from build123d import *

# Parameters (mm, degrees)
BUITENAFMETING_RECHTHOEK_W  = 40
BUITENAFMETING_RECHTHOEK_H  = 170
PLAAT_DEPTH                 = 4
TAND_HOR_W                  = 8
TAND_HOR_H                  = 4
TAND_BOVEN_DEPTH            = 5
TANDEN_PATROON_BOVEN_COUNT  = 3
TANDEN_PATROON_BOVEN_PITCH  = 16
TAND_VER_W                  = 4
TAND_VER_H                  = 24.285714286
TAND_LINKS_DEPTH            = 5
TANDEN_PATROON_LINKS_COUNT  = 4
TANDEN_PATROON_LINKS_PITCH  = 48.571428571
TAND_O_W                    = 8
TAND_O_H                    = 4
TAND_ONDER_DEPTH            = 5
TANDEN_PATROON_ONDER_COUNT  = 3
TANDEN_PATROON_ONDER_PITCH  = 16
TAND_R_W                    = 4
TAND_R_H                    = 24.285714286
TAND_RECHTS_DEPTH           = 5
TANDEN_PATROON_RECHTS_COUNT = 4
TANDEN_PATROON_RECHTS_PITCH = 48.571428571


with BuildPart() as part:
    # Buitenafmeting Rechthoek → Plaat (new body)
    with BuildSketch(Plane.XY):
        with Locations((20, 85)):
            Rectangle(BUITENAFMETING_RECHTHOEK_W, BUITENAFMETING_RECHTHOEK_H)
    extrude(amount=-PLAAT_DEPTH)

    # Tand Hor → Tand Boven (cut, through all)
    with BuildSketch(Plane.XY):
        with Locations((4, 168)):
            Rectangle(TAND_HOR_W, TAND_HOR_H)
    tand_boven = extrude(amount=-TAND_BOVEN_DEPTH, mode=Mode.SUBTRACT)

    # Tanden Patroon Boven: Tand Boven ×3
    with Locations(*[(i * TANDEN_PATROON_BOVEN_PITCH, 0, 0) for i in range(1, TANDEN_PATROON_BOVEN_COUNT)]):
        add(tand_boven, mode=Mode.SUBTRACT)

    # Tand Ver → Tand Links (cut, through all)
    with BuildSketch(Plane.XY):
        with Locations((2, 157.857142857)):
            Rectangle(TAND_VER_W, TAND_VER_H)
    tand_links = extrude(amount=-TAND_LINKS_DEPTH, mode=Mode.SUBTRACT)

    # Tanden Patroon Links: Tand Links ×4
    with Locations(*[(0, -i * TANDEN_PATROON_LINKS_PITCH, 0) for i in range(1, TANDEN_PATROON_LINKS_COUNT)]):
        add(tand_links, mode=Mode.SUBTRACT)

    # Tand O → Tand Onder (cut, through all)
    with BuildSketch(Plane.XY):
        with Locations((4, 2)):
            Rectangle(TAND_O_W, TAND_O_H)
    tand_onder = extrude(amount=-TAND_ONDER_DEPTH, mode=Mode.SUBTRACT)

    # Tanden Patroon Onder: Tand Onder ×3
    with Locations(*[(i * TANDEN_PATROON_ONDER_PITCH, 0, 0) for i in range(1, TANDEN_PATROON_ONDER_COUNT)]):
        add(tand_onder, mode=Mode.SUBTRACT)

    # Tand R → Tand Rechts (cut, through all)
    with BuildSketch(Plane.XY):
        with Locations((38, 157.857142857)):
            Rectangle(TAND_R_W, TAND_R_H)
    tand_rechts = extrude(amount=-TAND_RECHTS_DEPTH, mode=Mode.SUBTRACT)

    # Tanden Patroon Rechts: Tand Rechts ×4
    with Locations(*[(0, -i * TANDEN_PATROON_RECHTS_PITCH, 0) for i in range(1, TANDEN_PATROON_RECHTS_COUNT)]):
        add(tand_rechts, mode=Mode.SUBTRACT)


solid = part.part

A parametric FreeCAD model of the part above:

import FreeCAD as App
import Part
import Sketcher
from FreeCAD import Vector

doc = App.newDocument("Part")
body = doc.addObject("PartDesign::Body", "Body")

# Sketch on XY plane
sketch1 = doc.addObject("Sketcher::SketchObject", "Sketch")
body.addObject(sketch1)
sketch1.AttachmentSupport = (doc.XY_Plane, [""])
sketch1.MapMode = "FlatFace"
sketch1.addGeometry([
    Part.LineSegment(Vector(0, 170, 0), Vector(0, 0, 0)),
    Part.LineSegment(Vector(0, 0, 0), Vector(40, 0, 0)),
    Part.LineSegment(Vector(40, 0, 0), Vector(40, 170, 0)),
    Part.LineSegment(Vector(40, 170, 0), Vector(0, 170, 0)),
], False)
sketch1.addConstraint([
    Sketcher.Constraint("Coincident", 0, 2, 1, 1),
    Sketcher.Constraint("Coincident", 1, 2, 2, 1),
    Sketcher.Constraint("Coincident", 2, 2, 3, 1),
    Sketcher.Constraint("Coincident", 3, 2, 0, 1),
    Sketcher.Constraint("Vertical", 0),
    Sketcher.Constraint("Horizontal", 1),
    Sketcher.Constraint("Vertical", 2),
    Sketcher.Constraint("Horizontal", 3),
    Sketcher.Constraint("Coincident", 0, 2, -1, 1),
    Sketcher.Constraint("DistanceX", 1, 1, 1, 2, 40.0),
    Sketcher.Constraint("DistanceY", 0, 2, 0, 1, 170.0),
])
pad1 = doc.addObject("PartDesign::Pad", "Pad")
body.addObject(pad1)
pad1.Profile = sketch1
pad1.Length = 4
pad1.Reversed = True

# Sketch on XY plane
sketch2 = doc.addObject("Sketcher::SketchObject", "Sketch001")
body.addObject(sketch2)
sketch2.AttachmentSupport = (doc.XY_Plane, [""])
sketch2.MapMode = "FlatFace"
sketch2.addGeometry([
    Part.LineSegment(Vector(0, 170, 0), Vector(0, 166, 0)),
    Part.LineSegment(Vector(0, 166, 0), Vector(8, 166, 0)),
    Part.LineSegment(Vector(8, 166, 0), Vector(8, 170, 0)),
    Part.LineSegment(Vector(8, 170, 0), Vector(0, 170, 0)),
], False)
sketch2.addConstraint([
    Sketcher.Constraint("Coincident", 0, 2, 1, 1),
    Sketcher.Constraint("Coincident", 1, 2, 2, 1),
    Sketcher.Constraint("Coincident", 2, 2, 3, 1),
    Sketcher.Constraint("Coincident", 3, 2, 0, 1),
    Sketcher.Constraint("Vertical", 0),
    Sketcher.Constraint("Horizontal", 1),
    Sketcher.Constraint("Vertical", 2),
    Sketcher.Constraint("Horizontal", 3),
    Sketcher.Constraint("PointOnObject", 0, 2, -2),
    Sketcher.Constraint("DistanceX", 1, 1, 1, 2, 8.0),
    Sketcher.Constraint("DistanceY", 0, 2, 0, 1, 4.0),
    Sketcher.Constraint("DistanceY", -1, 1, 0, 2, 166.0),
])
pocket1 = doc.addObject("PartDesign::Pocket", "Pocket")
body.addObject(pocket1)
pocket1.Profile = sketch2
pocket1.Type = "ThroughAll"
doc.recompute()

linearpattern = doc.addObject("PartDesign::LinearPattern", "LinearPattern")
body.addObject(linearpattern)
linearpattern.Originals = [pocket1]
linearpattern.Direction = (doc.X_Axis, [""])
linearpattern.Mode = "offset"
linearpattern.Offset = 16
linearpattern.Occurrences = 3
body.Tip = linearpattern

# Sketch on XY plane
sketch3 = doc.addObject("Sketcher::SketchObject", "Sketch002")
body.addObject(sketch3)
sketch3.AttachmentSupport = (doc.XY_Plane, [""])
sketch3.MapMode = "FlatFace"
sketch3.addGeometry([
    Part.LineSegment(Vector(0, 170, 0), Vector(0, 145.714286, 0)),
    Part.LineSegment(Vector(0, 145.714286, 0), Vector(4, 145.714286, 0)),
    Part.LineSegment(Vector(4, 145.714286, 0), Vector(4, 170, 0)),
    Part.LineSegment(Vector(4, 170, 0), Vector(0, 170, 0)),
], False)
sketch3.addConstraint([
    Sketcher.Constraint("Coincident", 0, 2, 1, 1),
    Sketcher.Constraint("Coincident", 1, 2, 2, 1),
    Sketcher.Constraint("Coincident", 2, 2, 3, 1),
    Sketcher.Constraint("Coincident", 3, 2, 0, 1),
    Sketcher.Constraint("Vertical", 0),
    Sketcher.Constraint("Horizontal", 1),
    Sketcher.Constraint("Vertical", 2),
    Sketcher.Constraint("Horizontal", 3),
    Sketcher.Constraint("PointOnObject", 0, 2, -2),
    Sketcher.Constraint("DistanceX", 1, 1, 1, 2, 4.0),
    Sketcher.Constraint("DistanceY", -1, 1, 2, 2, 170.0),
    Sketcher.Constraint("DistanceY", 0, 2, 0, 1, 24.285714),
])
pocket2 = doc.addObject("PartDesign::Pocket", "Pocket001")
body.addObject(pocket2)
pocket2.Profile = sketch3
pocket2.Type = "ThroughAll"
doc.recompute()

linearpattern2 = doc.addObject("PartDesign::LinearPattern", "LinearPattern001")
body.addObject(linearpattern2)
linearpattern2.Originals = [pocket2]
linearpattern2.Direction = (doc.Y_Axis, [""])
linearpattern2.Mode = "offset"
linearpattern2.Offset = 48.571429
linearpattern2.Occurrences = 4
linearpattern2.Reversed = True
body.Tip = linearpattern2

# Sketch on XY plane
sketch4 = doc.addObject("Sketcher::SketchObject", "Sketch003")
body.addObject(sketch4)
sketch4.AttachmentSupport = (doc.XY_Plane, [""])
sketch4.MapMode = "FlatFace"
sketch4.addGeometry([
    Part.LineSegment(Vector(0, 4, 0), Vector(0, 0, 0)),
    Part.LineSegment(Vector(0, 0, 0), Vector(8, 0, 0)),
    Part.LineSegment(Vector(8, 0, 0), Vector(8, 4, 0)),
    Part.LineSegment(Vector(8, 4, 0), Vector(0, 4, 0)),
], False)
sketch4.addConstraint([
    Sketcher.Constraint("Coincident", 0, 2, 1, 1),
    Sketcher.Constraint("Coincident", 1, 2, 2, 1),
    Sketcher.Constraint("Coincident", 2, 2, 3, 1),
    Sketcher.Constraint("Coincident", 3, 2, 0, 1),
    Sketcher.Constraint("Vertical", 0),
    Sketcher.Constraint("Horizontal", 1),
    Sketcher.Constraint("Vertical", 2),
    Sketcher.Constraint("Horizontal", 3),
    Sketcher.Constraint("Coincident", 0, 2, -1, 1),
    Sketcher.Constraint("DistanceX", 1, 1, 1, 2, 8.0),
    Sketcher.Constraint("DistanceY", 0, 2, 0, 1, 4.0),
])
pocket3 = doc.addObject("PartDesign::Pocket", "Pocket002")
body.addObject(pocket3)
pocket3.Profile = sketch4
pocket3.Type = "ThroughAll"
doc.recompute()

linearpattern3 = doc.addObject("PartDesign::LinearPattern", "LinearPattern002")
body.addObject(linearpattern3)
linearpattern3.Originals = [pocket3]
linearpattern3.Direction = (doc.X_Axis, [""])
linearpattern3.Mode = "offset"
linearpattern3.Offset = 16
linearpattern3.Occurrences = 3
body.Tip = linearpattern3

# Sketch on XY plane
sketch5 = doc.addObject("Sketcher::SketchObject", "Sketch004")
body.addObject(sketch5)
sketch5.AttachmentSupport = (doc.XY_Plane, [""])
sketch5.MapMode = "FlatFace"
sketch5.addGeometry([
    Part.LineSegment(Vector(36, 170, 0), Vector(36, 145.714286, 0)),
    Part.LineSegment(Vector(36, 145.714286, 0), Vector(40, 145.714286, 0)),
    Part.LineSegment(Vector(40, 145.714286, 0), Vector(40, 170, 0)),
    Part.LineSegment(Vector(40, 170, 0), Vector(36, 170, 0)),
], False)
sketch5.addConstraint([
    Sketcher.Constraint("Coincident", 0, 2, 1, 1),
    Sketcher.Constraint("Coincident", 1, 2, 2, 1),
    Sketcher.Constraint("Coincident", 2, 2, 3, 1),
    Sketcher.Constraint("Coincident", 3, 2, 0, 1),
    Sketcher.Constraint("Vertical", 0),
    Sketcher.Constraint("Horizontal", 1),
    Sketcher.Constraint("Vertical", 2),
    Sketcher.Constraint("Horizontal", 3),
    Sketcher.Constraint("DistanceX", 1, 1, 1, 2, 4.0),
    Sketcher.Constraint("DistanceX", -1, 1, 0, 2, 36.0),
    Sketcher.Constraint("DistanceY", -1, 1, 2, 2, 170.0),
    Sketcher.Constraint("DistanceY", 0, 2, 0, 1, 24.285714),
])
pocket4 = doc.addObject("PartDesign::Pocket", "Pocket003")
body.addObject(pocket4)
pocket4.Profile = sketch5
pocket4.Type = "ThroughAll"
doc.recompute()

linearpattern4 = doc.addObject("PartDesign::LinearPattern", "LinearPattern003")
body.addObject(linearpattern4)
linearpattern4.Originals = [pocket4]
linearpattern4.Direction = (doc.Y_Axis, [""])
linearpattern4.Mode = "offset"
linearpattern4.Offset = 48.571429
linearpattern4.Occurrences = 4
linearpattern4.Reversed = True
body.Tip = linearpattern4

doc.recompute()
